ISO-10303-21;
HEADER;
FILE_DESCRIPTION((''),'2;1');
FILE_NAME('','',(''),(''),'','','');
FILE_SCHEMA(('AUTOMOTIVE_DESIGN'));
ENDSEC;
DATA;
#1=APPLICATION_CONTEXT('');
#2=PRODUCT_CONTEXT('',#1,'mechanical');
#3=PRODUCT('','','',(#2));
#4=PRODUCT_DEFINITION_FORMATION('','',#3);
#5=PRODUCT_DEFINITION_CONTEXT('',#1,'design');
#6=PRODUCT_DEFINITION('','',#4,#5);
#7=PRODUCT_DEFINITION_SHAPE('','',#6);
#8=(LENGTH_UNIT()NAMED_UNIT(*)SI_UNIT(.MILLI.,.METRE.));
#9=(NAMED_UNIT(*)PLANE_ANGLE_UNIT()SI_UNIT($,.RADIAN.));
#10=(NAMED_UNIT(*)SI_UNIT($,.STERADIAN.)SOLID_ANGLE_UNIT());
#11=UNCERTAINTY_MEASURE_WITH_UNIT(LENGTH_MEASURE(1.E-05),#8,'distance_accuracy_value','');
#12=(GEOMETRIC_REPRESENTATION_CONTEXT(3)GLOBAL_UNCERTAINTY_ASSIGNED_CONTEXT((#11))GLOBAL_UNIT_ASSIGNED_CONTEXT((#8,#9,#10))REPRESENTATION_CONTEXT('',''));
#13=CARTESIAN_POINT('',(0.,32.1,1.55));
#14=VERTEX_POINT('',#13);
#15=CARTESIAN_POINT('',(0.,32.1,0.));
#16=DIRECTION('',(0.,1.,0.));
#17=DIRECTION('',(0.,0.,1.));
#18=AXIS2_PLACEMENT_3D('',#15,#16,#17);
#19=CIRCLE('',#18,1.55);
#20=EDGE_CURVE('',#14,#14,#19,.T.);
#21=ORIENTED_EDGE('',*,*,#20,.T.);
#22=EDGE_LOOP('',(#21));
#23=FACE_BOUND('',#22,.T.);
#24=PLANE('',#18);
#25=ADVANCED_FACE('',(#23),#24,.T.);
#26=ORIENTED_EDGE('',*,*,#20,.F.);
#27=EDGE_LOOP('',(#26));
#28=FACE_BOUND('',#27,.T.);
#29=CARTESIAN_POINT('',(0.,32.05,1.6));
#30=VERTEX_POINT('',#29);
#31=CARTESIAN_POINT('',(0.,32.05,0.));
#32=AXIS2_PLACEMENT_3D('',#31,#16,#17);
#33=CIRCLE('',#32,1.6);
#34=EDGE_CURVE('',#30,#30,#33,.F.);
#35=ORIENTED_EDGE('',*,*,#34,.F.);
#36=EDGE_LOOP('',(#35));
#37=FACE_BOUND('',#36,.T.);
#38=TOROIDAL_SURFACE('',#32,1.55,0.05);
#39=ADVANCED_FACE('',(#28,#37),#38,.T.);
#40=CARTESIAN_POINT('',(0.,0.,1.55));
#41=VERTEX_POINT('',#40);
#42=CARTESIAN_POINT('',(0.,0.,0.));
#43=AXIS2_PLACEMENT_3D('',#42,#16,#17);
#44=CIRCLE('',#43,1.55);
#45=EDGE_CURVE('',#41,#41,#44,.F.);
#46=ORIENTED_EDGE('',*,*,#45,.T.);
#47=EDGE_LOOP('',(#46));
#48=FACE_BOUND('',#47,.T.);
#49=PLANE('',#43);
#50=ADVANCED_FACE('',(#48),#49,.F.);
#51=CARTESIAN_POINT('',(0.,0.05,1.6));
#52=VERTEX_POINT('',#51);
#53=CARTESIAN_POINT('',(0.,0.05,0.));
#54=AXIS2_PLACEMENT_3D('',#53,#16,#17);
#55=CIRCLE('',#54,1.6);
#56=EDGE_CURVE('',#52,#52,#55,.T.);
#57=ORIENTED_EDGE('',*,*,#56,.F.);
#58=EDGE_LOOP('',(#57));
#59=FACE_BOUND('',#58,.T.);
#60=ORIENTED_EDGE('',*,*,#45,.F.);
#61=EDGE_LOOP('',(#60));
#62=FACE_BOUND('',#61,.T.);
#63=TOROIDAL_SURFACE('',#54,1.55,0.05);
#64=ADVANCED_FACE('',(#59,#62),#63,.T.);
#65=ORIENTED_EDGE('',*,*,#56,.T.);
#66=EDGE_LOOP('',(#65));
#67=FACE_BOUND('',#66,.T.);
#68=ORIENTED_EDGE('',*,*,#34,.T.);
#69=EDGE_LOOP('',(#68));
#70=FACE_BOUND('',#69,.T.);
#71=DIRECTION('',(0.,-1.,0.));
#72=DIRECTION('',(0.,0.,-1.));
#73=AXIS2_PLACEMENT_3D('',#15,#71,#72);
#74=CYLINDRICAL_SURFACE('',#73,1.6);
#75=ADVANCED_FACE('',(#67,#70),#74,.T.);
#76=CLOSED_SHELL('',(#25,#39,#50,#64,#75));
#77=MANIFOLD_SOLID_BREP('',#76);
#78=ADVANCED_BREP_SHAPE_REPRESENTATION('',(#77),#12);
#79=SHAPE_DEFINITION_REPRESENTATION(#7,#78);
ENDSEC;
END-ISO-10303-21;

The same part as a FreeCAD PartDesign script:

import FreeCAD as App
import Part
import Sketcher


def edges_at(feature, points):
    """Names of the edges that pass closest to the given points."""
    edges = feature.Shape.Edges
    near = lambda p: min(range(len(edges)), key=lambda i: edges[i].distToShape(Part.Vertex(*p))[0])
    return sorted({f"Edge{near(p) + 1}" for p in points})

doc = App.newDocument("Part")
body = doc.addObject("PartDesign::Body", "Body")

# Sketch on XZ plane
sketch1 = doc.addObject("Sketcher::SketchObject", "Sketch")
body.addObject(sketch1)
sketch1.AttachmentSupport = (doc.XZ_Plane, [""])
sketch1.MapMode = "FlatFace"
sketch1.addGeometry(Part.Circle(App.Vector(0, 0, 0), App.Vector(0, 0, 1), 1.6), False)
sketch1.addConstraint([
    Sketcher.Constraint("Coincident", 0, 3, -1, 1),
    Sketcher.Constraint("Diameter", 0, 3.2),
])
pad1 = doc.addObject("PartDesign::Pad", "Pad")
body.addObject(pad1)
pad1.Profile = sketch1
pad1.Length = 32.1
pad1.Reversed = True
doc.recompute()

fillet = doc.addObject("PartDesign::Fillet", "Fillet")
body.addObject(fillet)
fillet.Base = (pad1, edges_at(pad1, [(-1.6, 0, 0), (-1.6, 32.1, 0)]))
fillet.Radius = 0.05

doc.recompute()
